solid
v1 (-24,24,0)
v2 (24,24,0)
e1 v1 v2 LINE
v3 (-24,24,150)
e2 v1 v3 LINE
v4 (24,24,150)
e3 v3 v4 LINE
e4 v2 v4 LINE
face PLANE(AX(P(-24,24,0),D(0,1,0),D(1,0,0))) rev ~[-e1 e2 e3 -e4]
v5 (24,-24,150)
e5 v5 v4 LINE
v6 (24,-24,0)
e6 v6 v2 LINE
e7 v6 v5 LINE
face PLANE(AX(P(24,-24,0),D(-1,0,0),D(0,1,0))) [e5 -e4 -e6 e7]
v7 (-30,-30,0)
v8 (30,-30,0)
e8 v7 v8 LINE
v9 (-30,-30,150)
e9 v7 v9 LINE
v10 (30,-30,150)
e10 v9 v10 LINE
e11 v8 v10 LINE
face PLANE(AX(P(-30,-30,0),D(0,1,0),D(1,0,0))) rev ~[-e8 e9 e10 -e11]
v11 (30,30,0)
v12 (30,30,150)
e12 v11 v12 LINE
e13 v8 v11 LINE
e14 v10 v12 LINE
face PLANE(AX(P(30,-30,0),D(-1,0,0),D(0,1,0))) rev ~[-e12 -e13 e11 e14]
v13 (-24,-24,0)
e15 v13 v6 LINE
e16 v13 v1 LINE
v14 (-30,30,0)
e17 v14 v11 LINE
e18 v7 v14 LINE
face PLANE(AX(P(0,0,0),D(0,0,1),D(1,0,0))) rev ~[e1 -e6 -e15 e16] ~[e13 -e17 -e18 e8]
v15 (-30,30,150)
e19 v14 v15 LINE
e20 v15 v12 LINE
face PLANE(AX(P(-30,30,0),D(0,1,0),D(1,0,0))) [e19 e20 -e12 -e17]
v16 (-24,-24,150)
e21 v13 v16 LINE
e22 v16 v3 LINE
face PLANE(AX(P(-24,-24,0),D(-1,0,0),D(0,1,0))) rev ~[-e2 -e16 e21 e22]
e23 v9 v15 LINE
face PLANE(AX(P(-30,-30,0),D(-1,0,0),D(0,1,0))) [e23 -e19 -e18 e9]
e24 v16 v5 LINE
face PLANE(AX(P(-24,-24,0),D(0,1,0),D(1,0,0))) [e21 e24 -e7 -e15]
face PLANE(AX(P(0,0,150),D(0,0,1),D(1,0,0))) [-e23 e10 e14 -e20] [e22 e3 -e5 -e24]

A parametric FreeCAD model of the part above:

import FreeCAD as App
import Part
import Sketcher
from FreeCAD import Vector

doc = App.newDocument("Part")
body = doc.addObject("PartDesign::Body", "Body")

# Sketch on XY plane
sketch1 = body.newObject("Sketcher::SketchObject", "Sketch")
sketch1.AttachmentSupport = (doc.getObject("XY_Plane"), [""])
sketch1.MapMode = "FlatFace"
sketch1.addGeometry([
    Part.LineSegment(Vector(-30, 30, 0), Vector(-30, -30, 0)),
    Part.LineSegment(Vector(-30, -30, 0), Vector(30, -30, 0)),
    Part.LineSegment(Vector(30, -30, 0), Vector(30, 30, 0)),
    Part.LineSegment(Vector(30, 30, 0), Vector(-30, 30, 0)),
], False)
sketch1.addConstraint([
    Sketcher.Constraint("Coincident", 0, 2, 1, 1),
    Sketcher.Constraint("Coincident", 1, 2, 2, 1),
    Sketcher.Constraint("Coincident", 2, 2, 3, 1),
    Sketcher.Constraint("Coincident", 3, 2, 0, 1),
    Sketcher.Constraint("Vertical", 0),
    Sketcher.Constraint("Horizontal", 1),
    Sketcher.Constraint("Vertical", 2),
    Sketcher.Constraint("Horizontal", 3),
    Sketcher.Constraint("Symmetric", 0, 2, 2, 2, -1, 1),
    Sketcher.Constraint("Equal", 3, 0),
    Sketcher.Constraint("DistanceX", 1, 1, 1, 2, 60.0),
])
pad1 = body.newObject("PartDesign::Pad", "Pad")
pad1.Profile = sketch1
pad1.Length = 150

# Sketch on XY plane
sketch2 = body.newObject("Sketcher::SketchObject", "Sketch001")
sketch2.AttachmentSupport = (doc.getObject("XY_Plane"), [""])
sketch2.MapMode = "FlatFace"
sketch2.addGeometry([
    Part.LineSegment(Vector(-24, 24, 0), Vector(-24, -24, 0)),
    Part.LineSegment(Vector(-24, -24, 0), Vector(24, -24, 0)),
    Part.LineSegment(Vector(24, -24, 0), Vector(24, 24, 0)),
    Part.LineSegment(Vector(24, 24, 0), Vector(-24, 24, 0)),
], False)
sketch2.addConstraint([
    Sketcher.Constraint("Coincident", 0, 2, 1, 1),
    Sketcher.Constraint("Coincident", 1, 2, 2, 1),
    Sketcher.Constraint("Coincident", 2, 2, 3, 1),
    Sketcher.Constraint("Coincident", 3, 2, 0, 1),
    Sketcher.Constraint("Vertical", 0),
    Sketcher.Constraint("Horizontal", 1),
    Sketcher.Constraint("Vertical", 2),
    Sketcher.Constraint("Horizontal", 3),
    Sketcher.Constraint("Symmetric", 0, 2, 2, 2, -1, 1),
    Sketcher.Constraint("Equal", 3, 0),
    Sketcher.Constraint("DistanceX", 1, 1, 1, 2, 48.0),
])
pocket1 = body.newObject("PartDesign::Pocket", "Pocket")
pocket1.Profile = sketch2
pocket1.Length = 150
pocket1.Reversed = True

doc.recompute()
